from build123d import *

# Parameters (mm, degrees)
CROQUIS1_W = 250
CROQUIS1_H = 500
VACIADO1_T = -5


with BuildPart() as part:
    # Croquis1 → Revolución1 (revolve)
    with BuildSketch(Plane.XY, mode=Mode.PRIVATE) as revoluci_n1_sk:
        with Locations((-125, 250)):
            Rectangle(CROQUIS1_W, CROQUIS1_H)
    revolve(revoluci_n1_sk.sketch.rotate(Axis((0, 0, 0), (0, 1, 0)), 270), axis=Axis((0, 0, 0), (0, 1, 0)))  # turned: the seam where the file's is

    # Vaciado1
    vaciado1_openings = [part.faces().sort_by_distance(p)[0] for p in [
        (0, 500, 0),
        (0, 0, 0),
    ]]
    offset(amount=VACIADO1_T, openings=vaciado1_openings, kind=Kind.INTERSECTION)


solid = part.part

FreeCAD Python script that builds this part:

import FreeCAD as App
import Part
import Sketcher

V = App.Vector
Q = App.Units.Quantity


def faces_at(feature, points):
    """Names of the faces that lie closest to the given points."""
    faces = feature.Shape.Faces
    near = lambda p: min(range(len(faces)), key=lambda i: faces[i].distToShape(Part.Vertex(*p))[0])
    return sorted({f"Face{near(p) + 1}" for p in points})


def add_polygon(sketch, points):
    """Adds a closed chain of lines whose ends are joined by coincident constraints."""
    first, n = sketch.GeometryCount, len(points)
    for a, b in zip(points, points[1:] + points[:1]):
        sketch.addGeometry(Part.LineSegment(App.Vector(*a, 0), App.Vector(*b, 0)), False)
    for i in range(n):
        sketch.addConstraint(Sketcher.Constraint("Coincident", first + i, 2, first + (i + 1) % n, 1))

doc = App.newDocument("Part")
body = doc.addObject("PartDesign::Body", "Body")

sketch1 = body.newObject("Sketcher::SketchObject", "Sketch")
sketch1.AttachmentSupport = (doc.getObject("XY_Plane"), [""])
sketch1.MapMode = "FlatFace"
add_polygon(sketch1, [(-250, 500), (-250, 0), (0, 0), (0, 500)])
sketch1.addConstraint([
    Sketcher.Constraint("Vertical", 0),
    Sketcher.Constraint("Horizontal", 1),
    Sketcher.Constraint("Vertical", 2),
    Sketcher.Constraint("Horizontal", 3),
    Sketcher.Constraint("Coincident", 1, 2, -1, 1),
    Sketcher.Constraint("DistanceX", 1, 1, 1, 2, Q("250 mm")),
    Sketcher.Constraint("DistanceY", 0, 2, 0, 1, Q("500 mm")),
])
revolution = body.newObject("PartDesign::Revolution", "Revolution")
revolution.Profile = sketch1
revolution.ReferenceAxis = (sketch1, ["V_Axis"])
revolution.Angle = 360
doc.recompute()

thickness = body.newObject("PartDesign::Thickness", "Thickness")
thickness.Base = (revolution, faces_at(revolution, [(0, 500, 0), (0, 0, 0)]))
thickness.Value = 5
thickness.Reversed = True
thickness.Join = "Intersection"

doc.recompute()
